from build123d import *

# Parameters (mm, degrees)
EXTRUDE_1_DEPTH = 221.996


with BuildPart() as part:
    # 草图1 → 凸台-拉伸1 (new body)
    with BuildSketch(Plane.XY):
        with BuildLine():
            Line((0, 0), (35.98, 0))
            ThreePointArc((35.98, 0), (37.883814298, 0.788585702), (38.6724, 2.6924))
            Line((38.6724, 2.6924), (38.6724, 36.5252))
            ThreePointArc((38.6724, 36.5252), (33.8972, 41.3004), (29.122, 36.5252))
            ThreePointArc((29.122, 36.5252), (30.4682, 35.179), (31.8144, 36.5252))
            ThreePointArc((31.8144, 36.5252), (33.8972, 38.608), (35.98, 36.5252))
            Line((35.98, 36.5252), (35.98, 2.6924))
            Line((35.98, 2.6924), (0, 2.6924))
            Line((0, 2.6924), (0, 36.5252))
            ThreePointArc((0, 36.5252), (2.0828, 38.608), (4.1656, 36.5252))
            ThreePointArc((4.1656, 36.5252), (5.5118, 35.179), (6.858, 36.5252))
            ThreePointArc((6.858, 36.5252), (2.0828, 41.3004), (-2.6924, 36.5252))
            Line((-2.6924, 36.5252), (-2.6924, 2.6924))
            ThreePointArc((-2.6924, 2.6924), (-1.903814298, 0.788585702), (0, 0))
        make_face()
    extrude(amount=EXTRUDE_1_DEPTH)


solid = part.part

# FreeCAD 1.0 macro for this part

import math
import FreeCAD as App
import Part
import Sketcher
from FreeCAD import Vector
Q = App.Units.Quantity

doc = App.newDocument("Part")
params = doc.addObject("Spreadsheet::Sheet", "Params")
for row, (alias, value) in enumerate([
    ("sketch1_radius", "0.106 in"),
    ("sketch1_radius2", "0.188 in"),
    ("sketch1_height", "1.332 in"),
    ("pad1_length", "8.74 in"),
], start=1):
    params.set(f"A{row}", alias)
    params.set(f"B{row}", "=" + value)
    params.setAlias(f"B{row}", alias)

body = doc.addObject("PartDesign::Body", "Body")

sketch1 = doc.addObject("Sketcher::SketchObject", "Sketch")
body.addObject(sketch1)
sketch1.AttachmentSupport = (doc.XY_Plane, [""])
sketch1.MapMode = "FlatFace"
sketch1.addGeometry([
    Part.LineSegment(Vector(0, 0, 0), Vector(36, 0, 0)),
    Part.ArcOfCircle(Part.Circle(Vector(36, 2.7, 0), Vector(0, 0, 1), 2.7), math.radians(-90), math.radians(0)),
    Part.LineSegment(Vector(38.7, 2.7, 0), Vector(38.7, 36.5, 0)),
    Part.ArcOfCircle(Part.Circle(Vector(33.9, 36.5, 0), Vector(0, 0, 1), 4.8), math.radians(0), math.radians(180)),
    Part.ArcOfCircle(Part.Circle(Vector(30.5, 36.5, 0), Vector(0, 0, 1), 1.3), math.radians(180), math.radians(360)),
    Part.ArcOfCircle(Part.Circle(Vector(33.9, 36.5, 0), Vector(0, 0, 1), 2.1), math.radians(0), math.radians(180)),
    Part.LineSegment(Vector(36, 36.5, 0), Vector(36, 2.7, 0)),
    Part.LineSegment(Vector(36, 2.7, 0), Vector(0, 2.7, 0)),
    Part.LineSegment(Vector(0, 2.7, 0), Vector(0, 36.5, 0)),
    Part.ArcOfCircle(Part.Circle(Vector(2.1, 36.5, 0), Vector(0, 0, 1), 2.1), math.radians(0), math.radians(180)),
    Part.ArcOfCircle(Part.Circle(Vector(5.5, 36.5, 0), Vector(0, 0, 1), 1.3), math.radians(180), math.radians(360)),
    Part.ArcOfCircle(Part.Circle(Vector(2.1, 36.5, 0), Vector(0, 0, 1), 4.8), math.radians(0), math.radians(180)),
    Part.LineSegment(Vector(-2.7, 36.5, 0), Vector(-2.7, 2.7, 0)),
    Part.ArcOfCircle(Part.Circle(Vector(0, 2.7, 0), Vector(0, 0, 1), 2.7), math.radians(180), math.radians(270)),
], False)
sketch1.addConstraint([
    Sketcher.Constraint("Tangent", 0, 2, 1, 1),
    Sketcher.Constraint("Tangent", 1, 2, 2, 1),
    Sketcher.Constraint("Tangent", 2, 2, 3, 1),
    Sketcher.Constraint("Tangent", 3, 2, 4, 1),
    Sketcher.Constraint("Tangent", 4, 2, 5, 2),
    Sketcher.Constraint("Tangent", 5, 1, 6, 1),
    Sketcher.Constraint("Coincident", 6, 2, 7, 1),
    Sketcher.Constraint("Coincident", 7, 2, 8, 1),
    Sketcher.Constraint("Tangent", 8, 2, 9, 2),
    Sketcher.Constraint("Tangent", 9, 1, 10, 1),
    Sketcher.Constraint("Tangent", 10, 2, 11, 1),
    Sketcher.Constraint("Tangent", 11, 2, 12, 1),
    Sketcher.Constraint("Tangent", 12, 2, 13, 1),
    Sketcher.Constraint("Tangent", 13, 2, 0, 1),
    Sketcher.Constraint("Horizontal", 0),
    Sketcher.Constraint("Vertical", 2),
    Sketcher.Constraint("Vertical", 6),
    Sketcher.Constraint("Horizontal", 7),
    Sketcher.Constraint("Vertical", 8),
    Sketcher.Constraint("Vertical", 12),
    Sketcher.Constraint("Coincident", 13, 2, -1, 1),
    Sketcher.Constraint("Coincident", 5, 3, 3, 3),
    Sketcher.Constraint("Coincident", 11, 3, 9, 3),
    Sketcher.Constraint("Coincident", 6, 2, 1, 3),
    Sketcher.Constraint("Coincident", 7, 2, 13, 3),
    Sketcher.Constraint("Equal", 5, 9),
    Sketcher.Constraint("Horizontal", 3, 3, 4, 3),
    Sketcher.Constraint("Horizontal", 5, 3, 9, 3),
    Sketcher.Constraint("Horizontal", 9, 3, 10, 3),
    Sketcher.Constraint("Radius", 1, Q("0.106 in")),
    Sketcher.Constraint("Radius", 3, Q("0.188 in")),
    Sketcher.Constraint("DistanceY", 2, 1, 2, 2, Q("1.332 in")),
    Sketcher.Constraint("DistanceX", 0, 1, 0, 2, 35.98),
])
sketch1.setExpression("Constraints[29]", "Params.sketch1_radius")
sketch1.setExpression("Constraints[30]", "Params.sketch1_radius2")
sketch1.setExpression("Constraints[31]", "Params.sketch1_height")
pad1 = doc.addObject("PartDesign::Pad", "Pad")
body.addObject(pad1)
pad1.Profile = sketch1
pad1.setExpression("Length", "Params.pad1_length")

doc.recompute()
